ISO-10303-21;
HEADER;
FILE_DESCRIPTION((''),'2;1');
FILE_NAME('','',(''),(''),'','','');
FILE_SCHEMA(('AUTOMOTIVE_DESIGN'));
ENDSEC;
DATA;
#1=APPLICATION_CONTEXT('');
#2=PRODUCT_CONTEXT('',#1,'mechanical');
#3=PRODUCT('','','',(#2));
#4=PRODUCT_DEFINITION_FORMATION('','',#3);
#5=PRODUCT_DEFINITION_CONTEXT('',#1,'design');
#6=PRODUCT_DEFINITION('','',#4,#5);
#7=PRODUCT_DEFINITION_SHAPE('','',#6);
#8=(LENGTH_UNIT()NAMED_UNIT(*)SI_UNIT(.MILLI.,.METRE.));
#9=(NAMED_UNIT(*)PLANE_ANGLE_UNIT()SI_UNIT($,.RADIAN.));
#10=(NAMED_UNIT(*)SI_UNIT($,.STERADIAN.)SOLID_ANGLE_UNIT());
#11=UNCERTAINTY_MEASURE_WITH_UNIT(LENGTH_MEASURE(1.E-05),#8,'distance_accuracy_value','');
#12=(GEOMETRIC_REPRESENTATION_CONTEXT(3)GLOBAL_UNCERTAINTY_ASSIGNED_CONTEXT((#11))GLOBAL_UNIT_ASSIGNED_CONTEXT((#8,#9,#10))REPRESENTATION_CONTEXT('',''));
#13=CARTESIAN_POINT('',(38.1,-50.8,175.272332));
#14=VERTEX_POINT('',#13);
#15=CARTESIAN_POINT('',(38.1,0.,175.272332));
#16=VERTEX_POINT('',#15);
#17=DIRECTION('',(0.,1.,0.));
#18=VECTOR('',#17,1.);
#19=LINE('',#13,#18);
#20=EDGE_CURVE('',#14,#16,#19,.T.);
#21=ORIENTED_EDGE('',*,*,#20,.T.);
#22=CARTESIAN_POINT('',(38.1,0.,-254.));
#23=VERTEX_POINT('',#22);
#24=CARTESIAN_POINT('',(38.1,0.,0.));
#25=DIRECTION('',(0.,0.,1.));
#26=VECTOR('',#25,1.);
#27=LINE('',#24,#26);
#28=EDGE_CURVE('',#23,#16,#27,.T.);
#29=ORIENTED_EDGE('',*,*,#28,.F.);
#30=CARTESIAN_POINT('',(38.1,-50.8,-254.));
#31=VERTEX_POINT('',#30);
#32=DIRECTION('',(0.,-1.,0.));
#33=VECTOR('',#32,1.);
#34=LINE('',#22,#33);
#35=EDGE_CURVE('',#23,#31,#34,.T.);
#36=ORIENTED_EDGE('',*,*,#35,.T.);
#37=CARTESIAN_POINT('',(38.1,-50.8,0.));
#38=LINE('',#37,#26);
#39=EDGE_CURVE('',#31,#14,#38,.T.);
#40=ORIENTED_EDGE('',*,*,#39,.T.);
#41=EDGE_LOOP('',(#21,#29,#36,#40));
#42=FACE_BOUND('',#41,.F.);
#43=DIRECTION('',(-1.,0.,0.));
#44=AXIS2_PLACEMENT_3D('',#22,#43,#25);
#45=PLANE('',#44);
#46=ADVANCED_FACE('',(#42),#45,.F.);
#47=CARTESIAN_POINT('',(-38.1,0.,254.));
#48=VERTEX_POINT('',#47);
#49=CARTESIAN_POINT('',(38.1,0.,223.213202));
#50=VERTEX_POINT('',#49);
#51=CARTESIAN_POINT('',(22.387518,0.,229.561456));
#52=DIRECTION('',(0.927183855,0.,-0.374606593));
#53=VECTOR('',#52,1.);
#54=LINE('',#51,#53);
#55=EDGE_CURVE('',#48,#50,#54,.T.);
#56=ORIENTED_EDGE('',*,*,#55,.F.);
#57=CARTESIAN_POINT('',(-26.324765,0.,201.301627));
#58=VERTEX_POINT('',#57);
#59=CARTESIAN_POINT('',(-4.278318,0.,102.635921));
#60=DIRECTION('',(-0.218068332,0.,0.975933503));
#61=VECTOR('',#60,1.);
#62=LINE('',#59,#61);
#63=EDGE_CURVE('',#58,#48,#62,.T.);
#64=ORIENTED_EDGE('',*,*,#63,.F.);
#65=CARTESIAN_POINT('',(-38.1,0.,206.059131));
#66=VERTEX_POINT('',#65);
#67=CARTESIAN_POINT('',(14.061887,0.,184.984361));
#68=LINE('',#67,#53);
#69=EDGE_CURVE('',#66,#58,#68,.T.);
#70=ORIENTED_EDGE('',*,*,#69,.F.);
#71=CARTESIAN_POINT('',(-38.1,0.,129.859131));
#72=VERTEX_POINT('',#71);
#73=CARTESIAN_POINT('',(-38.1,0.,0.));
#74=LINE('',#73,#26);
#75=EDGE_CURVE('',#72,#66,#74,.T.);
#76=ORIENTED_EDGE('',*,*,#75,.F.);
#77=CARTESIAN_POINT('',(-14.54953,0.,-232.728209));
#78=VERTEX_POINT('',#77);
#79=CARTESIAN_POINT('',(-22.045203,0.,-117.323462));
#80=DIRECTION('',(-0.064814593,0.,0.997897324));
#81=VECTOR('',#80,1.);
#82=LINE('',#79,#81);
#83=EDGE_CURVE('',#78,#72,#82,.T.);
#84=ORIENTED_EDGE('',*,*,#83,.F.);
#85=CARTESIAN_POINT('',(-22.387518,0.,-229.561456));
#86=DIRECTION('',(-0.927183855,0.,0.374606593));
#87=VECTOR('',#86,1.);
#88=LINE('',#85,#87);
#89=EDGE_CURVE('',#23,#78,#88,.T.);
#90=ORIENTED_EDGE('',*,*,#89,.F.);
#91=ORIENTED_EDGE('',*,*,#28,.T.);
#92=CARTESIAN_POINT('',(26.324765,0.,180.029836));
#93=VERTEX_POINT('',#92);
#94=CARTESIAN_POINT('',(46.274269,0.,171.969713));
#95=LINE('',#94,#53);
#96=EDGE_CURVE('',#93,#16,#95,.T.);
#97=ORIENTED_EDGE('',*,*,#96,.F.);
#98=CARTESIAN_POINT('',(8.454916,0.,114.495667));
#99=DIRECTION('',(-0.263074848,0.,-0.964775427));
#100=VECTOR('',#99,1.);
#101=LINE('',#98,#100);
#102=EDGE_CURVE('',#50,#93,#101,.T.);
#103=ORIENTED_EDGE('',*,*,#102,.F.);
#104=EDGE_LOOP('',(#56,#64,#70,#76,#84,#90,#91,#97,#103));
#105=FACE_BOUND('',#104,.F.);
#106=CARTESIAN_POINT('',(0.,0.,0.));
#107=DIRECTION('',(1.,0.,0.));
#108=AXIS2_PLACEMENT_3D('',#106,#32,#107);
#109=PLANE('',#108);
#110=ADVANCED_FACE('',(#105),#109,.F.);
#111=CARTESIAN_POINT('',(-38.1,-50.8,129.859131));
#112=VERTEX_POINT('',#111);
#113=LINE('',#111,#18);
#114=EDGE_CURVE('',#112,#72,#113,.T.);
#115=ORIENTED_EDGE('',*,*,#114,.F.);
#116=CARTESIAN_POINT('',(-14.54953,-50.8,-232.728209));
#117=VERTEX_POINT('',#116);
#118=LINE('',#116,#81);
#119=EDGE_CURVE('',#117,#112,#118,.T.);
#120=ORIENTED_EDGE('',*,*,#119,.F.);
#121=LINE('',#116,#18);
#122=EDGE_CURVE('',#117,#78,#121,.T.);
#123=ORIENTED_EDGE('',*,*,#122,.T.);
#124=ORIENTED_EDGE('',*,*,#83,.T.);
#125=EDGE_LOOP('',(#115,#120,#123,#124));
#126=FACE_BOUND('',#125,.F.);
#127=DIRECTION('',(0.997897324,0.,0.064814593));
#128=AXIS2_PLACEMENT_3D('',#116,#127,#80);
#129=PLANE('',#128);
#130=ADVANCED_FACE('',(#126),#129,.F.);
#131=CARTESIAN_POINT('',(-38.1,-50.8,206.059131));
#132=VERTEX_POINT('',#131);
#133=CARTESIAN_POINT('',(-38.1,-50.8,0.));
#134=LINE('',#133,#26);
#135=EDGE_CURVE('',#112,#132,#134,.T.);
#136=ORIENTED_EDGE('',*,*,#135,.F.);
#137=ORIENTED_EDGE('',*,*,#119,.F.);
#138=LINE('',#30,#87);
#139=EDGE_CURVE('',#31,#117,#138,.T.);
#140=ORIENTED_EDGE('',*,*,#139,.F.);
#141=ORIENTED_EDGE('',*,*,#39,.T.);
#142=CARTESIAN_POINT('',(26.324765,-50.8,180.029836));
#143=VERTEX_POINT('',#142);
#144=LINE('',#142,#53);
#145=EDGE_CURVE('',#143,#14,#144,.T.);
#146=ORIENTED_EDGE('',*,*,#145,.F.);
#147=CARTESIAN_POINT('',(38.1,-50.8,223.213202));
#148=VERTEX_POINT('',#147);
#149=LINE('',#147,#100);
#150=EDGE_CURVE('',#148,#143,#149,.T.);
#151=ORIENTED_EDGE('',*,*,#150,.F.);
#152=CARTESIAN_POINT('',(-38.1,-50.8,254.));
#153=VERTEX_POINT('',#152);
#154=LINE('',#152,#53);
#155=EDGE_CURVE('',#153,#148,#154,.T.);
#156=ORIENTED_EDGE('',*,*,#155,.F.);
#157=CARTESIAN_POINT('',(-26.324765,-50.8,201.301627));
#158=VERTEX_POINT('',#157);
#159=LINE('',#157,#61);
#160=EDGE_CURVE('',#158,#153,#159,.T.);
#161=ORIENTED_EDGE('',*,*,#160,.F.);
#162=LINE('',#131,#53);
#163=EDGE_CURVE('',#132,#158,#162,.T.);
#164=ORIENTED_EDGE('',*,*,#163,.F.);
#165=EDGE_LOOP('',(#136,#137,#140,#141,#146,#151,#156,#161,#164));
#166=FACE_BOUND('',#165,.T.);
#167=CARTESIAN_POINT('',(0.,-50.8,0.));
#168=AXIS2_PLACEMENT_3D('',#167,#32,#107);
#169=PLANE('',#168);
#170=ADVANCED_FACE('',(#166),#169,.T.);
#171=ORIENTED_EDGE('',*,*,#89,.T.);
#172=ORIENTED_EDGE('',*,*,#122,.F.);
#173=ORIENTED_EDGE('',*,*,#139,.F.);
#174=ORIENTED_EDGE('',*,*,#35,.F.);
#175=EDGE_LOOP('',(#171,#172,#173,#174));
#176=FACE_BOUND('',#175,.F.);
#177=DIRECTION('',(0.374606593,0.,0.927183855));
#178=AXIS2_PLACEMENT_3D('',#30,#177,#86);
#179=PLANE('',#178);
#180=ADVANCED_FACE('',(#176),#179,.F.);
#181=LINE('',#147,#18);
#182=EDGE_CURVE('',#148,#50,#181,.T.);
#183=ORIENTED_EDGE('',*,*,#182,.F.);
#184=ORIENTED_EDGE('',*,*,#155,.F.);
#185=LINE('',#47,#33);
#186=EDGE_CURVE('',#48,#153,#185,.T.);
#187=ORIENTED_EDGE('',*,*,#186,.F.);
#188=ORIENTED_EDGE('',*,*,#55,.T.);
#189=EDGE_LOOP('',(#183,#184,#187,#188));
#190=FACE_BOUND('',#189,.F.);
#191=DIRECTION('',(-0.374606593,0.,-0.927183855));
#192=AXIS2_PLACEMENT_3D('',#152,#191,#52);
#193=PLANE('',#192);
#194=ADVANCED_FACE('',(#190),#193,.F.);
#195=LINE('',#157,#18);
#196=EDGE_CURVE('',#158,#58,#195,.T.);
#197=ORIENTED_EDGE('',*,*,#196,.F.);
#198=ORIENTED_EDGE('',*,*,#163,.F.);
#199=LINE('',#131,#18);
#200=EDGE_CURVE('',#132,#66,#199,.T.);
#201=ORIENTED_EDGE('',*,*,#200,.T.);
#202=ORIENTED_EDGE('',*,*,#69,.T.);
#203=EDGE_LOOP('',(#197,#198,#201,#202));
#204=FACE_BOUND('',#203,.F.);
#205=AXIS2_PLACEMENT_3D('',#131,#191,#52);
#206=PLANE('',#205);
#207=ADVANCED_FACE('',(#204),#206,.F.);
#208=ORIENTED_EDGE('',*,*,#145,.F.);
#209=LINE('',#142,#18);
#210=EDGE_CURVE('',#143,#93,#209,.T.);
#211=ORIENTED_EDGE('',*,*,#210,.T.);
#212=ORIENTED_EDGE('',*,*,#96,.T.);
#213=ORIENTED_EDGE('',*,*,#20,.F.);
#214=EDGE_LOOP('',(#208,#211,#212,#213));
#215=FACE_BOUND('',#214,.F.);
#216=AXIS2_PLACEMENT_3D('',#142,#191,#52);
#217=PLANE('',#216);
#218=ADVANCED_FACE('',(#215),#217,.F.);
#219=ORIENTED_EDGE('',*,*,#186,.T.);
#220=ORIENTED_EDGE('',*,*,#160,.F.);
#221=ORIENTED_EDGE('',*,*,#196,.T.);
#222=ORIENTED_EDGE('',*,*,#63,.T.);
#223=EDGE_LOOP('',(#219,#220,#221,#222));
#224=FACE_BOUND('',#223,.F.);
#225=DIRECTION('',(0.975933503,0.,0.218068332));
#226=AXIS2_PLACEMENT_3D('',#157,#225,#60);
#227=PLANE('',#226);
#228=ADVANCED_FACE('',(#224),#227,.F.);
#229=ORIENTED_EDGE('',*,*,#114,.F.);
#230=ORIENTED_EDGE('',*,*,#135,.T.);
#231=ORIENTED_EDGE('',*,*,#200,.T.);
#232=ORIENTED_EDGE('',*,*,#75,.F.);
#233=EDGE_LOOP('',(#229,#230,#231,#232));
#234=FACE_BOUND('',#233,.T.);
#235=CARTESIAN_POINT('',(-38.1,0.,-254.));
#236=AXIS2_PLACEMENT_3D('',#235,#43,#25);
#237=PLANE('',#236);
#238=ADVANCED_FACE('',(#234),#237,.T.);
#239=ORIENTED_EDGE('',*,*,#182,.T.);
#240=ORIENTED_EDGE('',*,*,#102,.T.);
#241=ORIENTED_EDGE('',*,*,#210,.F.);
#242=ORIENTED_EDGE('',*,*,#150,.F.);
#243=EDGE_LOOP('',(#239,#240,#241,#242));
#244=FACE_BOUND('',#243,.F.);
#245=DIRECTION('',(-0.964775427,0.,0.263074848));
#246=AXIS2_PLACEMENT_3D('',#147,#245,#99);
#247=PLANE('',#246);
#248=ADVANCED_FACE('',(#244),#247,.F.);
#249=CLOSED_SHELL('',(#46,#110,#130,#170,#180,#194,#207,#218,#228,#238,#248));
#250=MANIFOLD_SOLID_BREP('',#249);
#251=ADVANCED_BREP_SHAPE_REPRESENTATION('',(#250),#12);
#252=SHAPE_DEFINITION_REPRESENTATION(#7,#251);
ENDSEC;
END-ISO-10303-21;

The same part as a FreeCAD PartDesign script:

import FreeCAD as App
import Part
import Sketcher
from FreeCAD import Vector
Q = App.Units.Quantity


def add_polygon(sketch, points):
    """Adds a closed chain of lines whose ends are joined by coincident constraints."""
    first, n = sketch.GeometryCount, len(points)
    for a, b in zip(points, points[1:] + points[:1]):
        sketch.addGeometry(Part.LineSegment(App.Vector(*a, 0), App.Vector(*b, 0)), False)
    for i in range(n):
        sketch.addConstraint(Sketcher.Constraint("Coincident", first + i, 2, first + (i + 1) % n, 1))

doc = App.newDocument("Part")
params = doc.addObject("Spreadsheet::Sheet", "Params")
for row, (alias, value) in enumerate([
    ("sketch1_width", "3 in"),
    ("sketch1_height", "20 in"),
    ("pad1_length", "2 in"),
    ("sketch2_width", "3 in"),
    ("sketch3_length", "0.5 in"),
    ("sketch4_length", "1 in"),
], start=1):
    params.set(f"A{row}", alias)
    params.set(f"B{row}", "=" + value)
    params.setAlias(f"B{row}", alias)

body = doc.addObject("PartDesign::Body", "Body")

# Sketch on XZ plane
sketch1 = body.newObject("Sketcher::SketchObject", "Sketch")
sketch1.AttachmentSupport = (doc.getObject("XZ_Plane"), [""])
sketch1.MapMode = "FlatFace"
add_polygon(sketch1, [(-38, 254), (-38, -254), (38, -254), (38, 254)])  # lines 0-3
sketch1.addConstraint(Sketcher.Constraint("Vertical", 0))
sketch1.addConstraint(Sketcher.Constraint("Horizontal", 1))
sketch1.addConstraint(Sketcher.Constraint("Vertical", 2))
sketch1.addConstraint(Sketcher.Constraint("Horizontal", 3))
sketch1.addConstraint(Sketcher.Constraint("Symmetric", 0, 2, 2, 2, -1, 1))
sketch1.addConstraint(Sketcher.Constraint("DistanceX", 1, 1, 1, 2, Q("3 in")))
sketch1.addConstraint(Sketcher.Constraint("DistanceY", 0, 2, 0, 1, Q("20 in")))
sketch1.setExpression("Constraints[9]", "Params.sketch1_width")
sketch1.setExpression("Constraints[10]", "Params.sketch1_height")
pad1 = body.newObject("PartDesign::Pad", "Pad")
pad1.Profile = sketch1
pad1.setExpression("Length", "Params.pad1_length")

# Sketch on XZ plane
sketch2 = body.newObject("Sketcher::SketchObject", "Sketch001")
sketch2.AttachmentSupport = (doc.getObject("XZ_Plane"), [""])
sketch2.MapMode = "FlatFace"
sketch2.AttachmentOffset = App.Placement(Vector(0, 0, 2 * 25.4), App.Rotation())
add_polygon(sketch2, [(38, -254), (-38, -223), (-38, -254)])  # lines 0-2
add_polygon(sketch2, [(38, 223), (38, 254), (-38, 254)])  # lines 3-5
sketch2.addConstraint(Sketcher.Constraint("Vertical", 1))
sketch2.addConstraint(Sketcher.Constraint("Horizontal", 2))
sketch2.addConstraint(Sketcher.Constraint("Vertical", 3))
sketch2.addConstraint(Sketcher.Constraint("Horizontal", 4))
sketch2.addConstraint(Sketcher.Constraint("Symmetric", 1, 2, 3, 2, -1, 1))
sketch2.addConstraint(Sketcher.Constraint("Parallel", 0, 5))
sketch2.addConstraint(Sketcher.Constraint("Vertical", 2, 2, 3, 2))
sketch2.addConstraint(Sketcher.Constraint("Vertical", 1, 2, 4, 2))
sketch2.addConstraint(Sketcher.Constraint("DistanceX", 2, 1, 2, 2, Q("3 in")))
sketch2.addConstraint(Sketcher.Constraint("DistanceY", 1, 2, -1, 1, Q("10 in")))
sketch2.addConstraint(Sketcher.Constraint("Angle", 0, Q("158 deg")))
sketch2.setExpression("Constraints[14]", "Params.sketch2_width")
pocket1 = body.newObject("PartDesign::Pocket", "Pocket")
pocket1.Profile = sketch2
pocket1.Type = "ThroughAll"

# Sketch on XZ plane
sketch3 = body.newObject("Sketcher::SketchObject", "Sketch002")
sketch3.AttachmentSupport = (doc.getObject("XZ_Plane"), [""])
sketch3.MapMode = "FlatFace"
sketch3.AttachmentOffset = App.Placement(Vector(0, 0, 2 * 25.4), App.Rotation())
add_polygon(sketch3, [(-26, 201), (-38, 254), (-38, 206)])  # lines 0-2
add_polygon(sketch3, [(38, 175), (38, 223), (26, 180)])  # lines 3-5
sketch3.addConstraint(Sketcher.Constraint("Vertical", 1))
sketch3.addConstraint(Sketcher.Constraint("Vertical", 3))
sketch3.addConstraint(Sketcher.Constraint("Parallel", 2, 5))
sketch3.addConstraint(Sketcher.Constraint("Equal", 1, 3))
sketch3.addConstraint(Sketcher.Constraint("Equal", 2, 5))
sketch3.addConstraint(Sketcher.Constraint("DistanceY", -1, 1, 0, 2, Q("10 in")))
sketch3.addConstraint(Sketcher.Constraint("Angle", 2, Q("-22 deg")))
sketch3.addConstraint(Sketcher.Constraint("DistanceX", 1, 2, 3, 2, Q("3 in")))
sketch3.addConstraint(Sketcher.Constraint("Distance", 2, Q("0.5 in")))
sketch3.addConstraint(Sketcher.Constraint("DistanceX", 0, 2, -1, 1, Q("1.5 in")))
sketch3.addConstraint(Sketcher.Constraint("DistanceY", 1, 2, 1, 1, 47.940869))
sketch3.addConstraint(Sketcher.Constraint("DistanceY", -1, 1, 3, 2, 223.213202))
sketch3.setExpression("Constraints[14]", "Params.sketch3_length")
pocket2 = body.newObject("PartDesign::Pocket", "Pocket001")
pocket2.Profile = sketch3
pocket2.Type = "ThroughAll"

# Sketch on XZ plane
sketch4 = body.newObject("Sketcher::SketchObject", "Sketch003")
sketch4.AttachmentSupport = (doc.getObject("XZ_Plane"), [""])
sketch4.MapMode = "FlatFace"
sketch4.AttachmentOffset = App.Placement(Vector(0, 0, 2 * 25.4), App.Rotation())
add_polygon(sketch4, [(-15, -233), (-38, 130), (-38, -223)])  # lines 0-2
sketch4.addConstraint(Sketcher.Constraint("Vertical", 1))
sketch4.addConstraint(Sketcher.Constraint("Distance", 2, Q("1 in")))
sketch4.addConstraint(Sketcher.Constraint("Angle", 2, Q("-22 deg")))
sketch4.addConstraint(Sketcher.Constraint("DistanceX", 0, 2, -1, 1, Q("1.5 in")))
sketch4.addConstraint(Sketcher.Constraint("DistanceY", 1, 2, -1, 1, 223.213202))
sketch4.addConstraint(Sketcher.Constraint("Distance", 0, 363.35135))
sketch4.setExpression("Constraints[4]", "Params.sketch4_length")
pocket3 = body.newObject("PartDesign::Pocket", "Pocket002")
pocket3.Profile = sketch4
pocket3.Type = "ThroughAll"

doc.recompute()
